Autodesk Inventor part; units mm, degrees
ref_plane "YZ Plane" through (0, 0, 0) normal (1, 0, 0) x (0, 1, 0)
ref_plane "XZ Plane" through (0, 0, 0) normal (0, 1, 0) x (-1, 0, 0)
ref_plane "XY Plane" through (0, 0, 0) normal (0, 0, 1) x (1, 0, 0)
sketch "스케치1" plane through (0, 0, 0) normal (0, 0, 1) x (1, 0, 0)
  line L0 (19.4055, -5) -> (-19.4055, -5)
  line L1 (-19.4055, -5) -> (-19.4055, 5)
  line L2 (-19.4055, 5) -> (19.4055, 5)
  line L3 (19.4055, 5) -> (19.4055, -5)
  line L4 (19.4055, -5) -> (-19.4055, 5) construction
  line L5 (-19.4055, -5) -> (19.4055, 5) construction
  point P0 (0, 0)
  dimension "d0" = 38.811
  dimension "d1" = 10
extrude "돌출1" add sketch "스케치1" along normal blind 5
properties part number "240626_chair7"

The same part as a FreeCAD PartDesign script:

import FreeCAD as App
import Part
import Sketcher
from FreeCAD import Vector
Q = App.Units.Quantity


def add_polygon(sketch, points):
    """Adds a closed chain of lines whose ends are joined by coincident constraints."""
    first, n = sketch.GeometryCount, len(points)
    for a, b in zip(points, points[1:] + points[:1]):
        sketch.addGeometry(Part.LineSegment(App.Vector(*a, 0), App.Vector(*b, 0)), False)
    for i in range(n):
        sketch.addConstraint(Sketcher.Constraint("Coincident", first + i, 2, first + (i + 1) % n, 1))

doc = App.newDocument("Part")
body = doc.addObject("PartDesign::Body", "Body")

sketch1 = body.newObject("Sketcher::SketchObject", "Sketch")
sketch1.AttachmentSupport = (doc.getObject("XY_Plane"), [""])
sketch1.MapMode = "FlatFace"
add_polygon(sketch1, [(-19, -5), (19, -5), (19, 5), (-19, 5)])
sketch1.addConstraint(Sketcher.Constraint("Horizontal", 0))
sketch1.addConstraint(Sketcher.Constraint("Vertical", 1))
sketch1.addConstraint(Sketcher.Constraint("Horizontal", 2))
sketch1.addConstraint(Sketcher.Constraint("Vertical", 3))
sketch1.addConstraint(Sketcher.Constraint("Symmetric", 0, 2, 2, 2, -1, 1))
sketch1.addConstraint(Sketcher.Constraint("DistanceY", 1, 1, 1, 2, Q("10 mm")))
sketch1.addConstraint(Sketcher.Constraint("DistanceX", 0, 1, 0, 2, Q("38.811 mm")))
pad1 = body.newObject("PartDesign::Pad", "Pad")
pad1.Profile = sketch1
pad1.Length = 5

doc.recompute()
